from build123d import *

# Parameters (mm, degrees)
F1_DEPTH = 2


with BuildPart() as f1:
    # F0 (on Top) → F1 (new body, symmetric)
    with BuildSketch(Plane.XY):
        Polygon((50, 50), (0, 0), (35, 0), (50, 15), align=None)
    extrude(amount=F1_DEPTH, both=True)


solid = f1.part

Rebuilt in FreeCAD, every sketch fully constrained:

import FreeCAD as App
import Part
import Sketcher

doc = App.newDocument("Part")
params = doc.addObject("Spreadsheet::Sheet", "Params")
for row, (alias, value) in enumerate([
    ("sketch1_width", "35 mm"),
    ("pad1_length", "4 mm"),
], start=1):
    params.set(f"A{row}", alias)
    params.set(f"B{row}", "=" + value)
    params.setAlias(f"B{row}", alias)

body = doc.addObject("PartDesign::Body", "Body")

# Sketch on XY plane
sketch1 = doc.addObject("Sketcher::SketchObject", "Sketch")
body.addObject(sketch1)
sketch1.AttachmentSupport = (doc.XY_Plane, [""])
sketch1.MapMode = "FlatFace"
sketch1.addGeometry(Part.LineSegment(App.Vector(50, 50, 0), App.Vector(0, 0, 0)), False)
sketch1.addGeometry(Part.LineSegment(App.Vector(0, 0, 0), App.Vector(35, 0, 0)), False)
sketch1.addGeometry(Part.LineSegment(App.Vector(35, 0, 0), App.Vector(50, 15, 0)), False)
sketch1.addGeometry(Part.LineSegment(App.Vector(50, 15, 0), App.Vector(50, 50, 0)), False)
sketch1.addConstraint(Sketcher.Constraint("Coincident", 0, 2, 1, 1))
sketch1.addConstraint(Sketcher.Constraint("Coincident", 1, 2, 2, 1))
sketch1.addConstraint(Sketcher.Constraint("Coincident", 2, 2, 3, 1))
sketch1.addConstraint(Sketcher.Constraint("Coincident", 3, 2, 0, 1))
sketch1.addConstraint(Sketcher.Constraint("Horizontal", 1))
sketch1.addConstraint(Sketcher.Constraint("Vertical", 3))
sketch1.addConstraint(Sketcher.Constraint("Coincident", 0, 2, -1, 1))
sketch1.addConstraint(Sketcher.Constraint("Parallel", 0, 2))
sketch1.addConstraint(Sketcher.Constraint("Equal", 1, 3))
sketch1.addConstraint(Sketcher.Constraint("DistanceX", 1, 1, 1, 2, 35.0))
sketch1.addConstraint(Sketcher.Constraint("DistanceX", -1, 1, 2, 2, 50.0))
sketch1.setExpression("Constraints[9]", "Params.sketch1_width")
pad1 = doc.addObject("PartDesign::Pad", "Pad")
body.addObject(pad1)
pad1.Profile = sketch1
pad1.setExpression("Length", "Params.pad1_length")
pad1.Midplane = True

doc.recompute()
